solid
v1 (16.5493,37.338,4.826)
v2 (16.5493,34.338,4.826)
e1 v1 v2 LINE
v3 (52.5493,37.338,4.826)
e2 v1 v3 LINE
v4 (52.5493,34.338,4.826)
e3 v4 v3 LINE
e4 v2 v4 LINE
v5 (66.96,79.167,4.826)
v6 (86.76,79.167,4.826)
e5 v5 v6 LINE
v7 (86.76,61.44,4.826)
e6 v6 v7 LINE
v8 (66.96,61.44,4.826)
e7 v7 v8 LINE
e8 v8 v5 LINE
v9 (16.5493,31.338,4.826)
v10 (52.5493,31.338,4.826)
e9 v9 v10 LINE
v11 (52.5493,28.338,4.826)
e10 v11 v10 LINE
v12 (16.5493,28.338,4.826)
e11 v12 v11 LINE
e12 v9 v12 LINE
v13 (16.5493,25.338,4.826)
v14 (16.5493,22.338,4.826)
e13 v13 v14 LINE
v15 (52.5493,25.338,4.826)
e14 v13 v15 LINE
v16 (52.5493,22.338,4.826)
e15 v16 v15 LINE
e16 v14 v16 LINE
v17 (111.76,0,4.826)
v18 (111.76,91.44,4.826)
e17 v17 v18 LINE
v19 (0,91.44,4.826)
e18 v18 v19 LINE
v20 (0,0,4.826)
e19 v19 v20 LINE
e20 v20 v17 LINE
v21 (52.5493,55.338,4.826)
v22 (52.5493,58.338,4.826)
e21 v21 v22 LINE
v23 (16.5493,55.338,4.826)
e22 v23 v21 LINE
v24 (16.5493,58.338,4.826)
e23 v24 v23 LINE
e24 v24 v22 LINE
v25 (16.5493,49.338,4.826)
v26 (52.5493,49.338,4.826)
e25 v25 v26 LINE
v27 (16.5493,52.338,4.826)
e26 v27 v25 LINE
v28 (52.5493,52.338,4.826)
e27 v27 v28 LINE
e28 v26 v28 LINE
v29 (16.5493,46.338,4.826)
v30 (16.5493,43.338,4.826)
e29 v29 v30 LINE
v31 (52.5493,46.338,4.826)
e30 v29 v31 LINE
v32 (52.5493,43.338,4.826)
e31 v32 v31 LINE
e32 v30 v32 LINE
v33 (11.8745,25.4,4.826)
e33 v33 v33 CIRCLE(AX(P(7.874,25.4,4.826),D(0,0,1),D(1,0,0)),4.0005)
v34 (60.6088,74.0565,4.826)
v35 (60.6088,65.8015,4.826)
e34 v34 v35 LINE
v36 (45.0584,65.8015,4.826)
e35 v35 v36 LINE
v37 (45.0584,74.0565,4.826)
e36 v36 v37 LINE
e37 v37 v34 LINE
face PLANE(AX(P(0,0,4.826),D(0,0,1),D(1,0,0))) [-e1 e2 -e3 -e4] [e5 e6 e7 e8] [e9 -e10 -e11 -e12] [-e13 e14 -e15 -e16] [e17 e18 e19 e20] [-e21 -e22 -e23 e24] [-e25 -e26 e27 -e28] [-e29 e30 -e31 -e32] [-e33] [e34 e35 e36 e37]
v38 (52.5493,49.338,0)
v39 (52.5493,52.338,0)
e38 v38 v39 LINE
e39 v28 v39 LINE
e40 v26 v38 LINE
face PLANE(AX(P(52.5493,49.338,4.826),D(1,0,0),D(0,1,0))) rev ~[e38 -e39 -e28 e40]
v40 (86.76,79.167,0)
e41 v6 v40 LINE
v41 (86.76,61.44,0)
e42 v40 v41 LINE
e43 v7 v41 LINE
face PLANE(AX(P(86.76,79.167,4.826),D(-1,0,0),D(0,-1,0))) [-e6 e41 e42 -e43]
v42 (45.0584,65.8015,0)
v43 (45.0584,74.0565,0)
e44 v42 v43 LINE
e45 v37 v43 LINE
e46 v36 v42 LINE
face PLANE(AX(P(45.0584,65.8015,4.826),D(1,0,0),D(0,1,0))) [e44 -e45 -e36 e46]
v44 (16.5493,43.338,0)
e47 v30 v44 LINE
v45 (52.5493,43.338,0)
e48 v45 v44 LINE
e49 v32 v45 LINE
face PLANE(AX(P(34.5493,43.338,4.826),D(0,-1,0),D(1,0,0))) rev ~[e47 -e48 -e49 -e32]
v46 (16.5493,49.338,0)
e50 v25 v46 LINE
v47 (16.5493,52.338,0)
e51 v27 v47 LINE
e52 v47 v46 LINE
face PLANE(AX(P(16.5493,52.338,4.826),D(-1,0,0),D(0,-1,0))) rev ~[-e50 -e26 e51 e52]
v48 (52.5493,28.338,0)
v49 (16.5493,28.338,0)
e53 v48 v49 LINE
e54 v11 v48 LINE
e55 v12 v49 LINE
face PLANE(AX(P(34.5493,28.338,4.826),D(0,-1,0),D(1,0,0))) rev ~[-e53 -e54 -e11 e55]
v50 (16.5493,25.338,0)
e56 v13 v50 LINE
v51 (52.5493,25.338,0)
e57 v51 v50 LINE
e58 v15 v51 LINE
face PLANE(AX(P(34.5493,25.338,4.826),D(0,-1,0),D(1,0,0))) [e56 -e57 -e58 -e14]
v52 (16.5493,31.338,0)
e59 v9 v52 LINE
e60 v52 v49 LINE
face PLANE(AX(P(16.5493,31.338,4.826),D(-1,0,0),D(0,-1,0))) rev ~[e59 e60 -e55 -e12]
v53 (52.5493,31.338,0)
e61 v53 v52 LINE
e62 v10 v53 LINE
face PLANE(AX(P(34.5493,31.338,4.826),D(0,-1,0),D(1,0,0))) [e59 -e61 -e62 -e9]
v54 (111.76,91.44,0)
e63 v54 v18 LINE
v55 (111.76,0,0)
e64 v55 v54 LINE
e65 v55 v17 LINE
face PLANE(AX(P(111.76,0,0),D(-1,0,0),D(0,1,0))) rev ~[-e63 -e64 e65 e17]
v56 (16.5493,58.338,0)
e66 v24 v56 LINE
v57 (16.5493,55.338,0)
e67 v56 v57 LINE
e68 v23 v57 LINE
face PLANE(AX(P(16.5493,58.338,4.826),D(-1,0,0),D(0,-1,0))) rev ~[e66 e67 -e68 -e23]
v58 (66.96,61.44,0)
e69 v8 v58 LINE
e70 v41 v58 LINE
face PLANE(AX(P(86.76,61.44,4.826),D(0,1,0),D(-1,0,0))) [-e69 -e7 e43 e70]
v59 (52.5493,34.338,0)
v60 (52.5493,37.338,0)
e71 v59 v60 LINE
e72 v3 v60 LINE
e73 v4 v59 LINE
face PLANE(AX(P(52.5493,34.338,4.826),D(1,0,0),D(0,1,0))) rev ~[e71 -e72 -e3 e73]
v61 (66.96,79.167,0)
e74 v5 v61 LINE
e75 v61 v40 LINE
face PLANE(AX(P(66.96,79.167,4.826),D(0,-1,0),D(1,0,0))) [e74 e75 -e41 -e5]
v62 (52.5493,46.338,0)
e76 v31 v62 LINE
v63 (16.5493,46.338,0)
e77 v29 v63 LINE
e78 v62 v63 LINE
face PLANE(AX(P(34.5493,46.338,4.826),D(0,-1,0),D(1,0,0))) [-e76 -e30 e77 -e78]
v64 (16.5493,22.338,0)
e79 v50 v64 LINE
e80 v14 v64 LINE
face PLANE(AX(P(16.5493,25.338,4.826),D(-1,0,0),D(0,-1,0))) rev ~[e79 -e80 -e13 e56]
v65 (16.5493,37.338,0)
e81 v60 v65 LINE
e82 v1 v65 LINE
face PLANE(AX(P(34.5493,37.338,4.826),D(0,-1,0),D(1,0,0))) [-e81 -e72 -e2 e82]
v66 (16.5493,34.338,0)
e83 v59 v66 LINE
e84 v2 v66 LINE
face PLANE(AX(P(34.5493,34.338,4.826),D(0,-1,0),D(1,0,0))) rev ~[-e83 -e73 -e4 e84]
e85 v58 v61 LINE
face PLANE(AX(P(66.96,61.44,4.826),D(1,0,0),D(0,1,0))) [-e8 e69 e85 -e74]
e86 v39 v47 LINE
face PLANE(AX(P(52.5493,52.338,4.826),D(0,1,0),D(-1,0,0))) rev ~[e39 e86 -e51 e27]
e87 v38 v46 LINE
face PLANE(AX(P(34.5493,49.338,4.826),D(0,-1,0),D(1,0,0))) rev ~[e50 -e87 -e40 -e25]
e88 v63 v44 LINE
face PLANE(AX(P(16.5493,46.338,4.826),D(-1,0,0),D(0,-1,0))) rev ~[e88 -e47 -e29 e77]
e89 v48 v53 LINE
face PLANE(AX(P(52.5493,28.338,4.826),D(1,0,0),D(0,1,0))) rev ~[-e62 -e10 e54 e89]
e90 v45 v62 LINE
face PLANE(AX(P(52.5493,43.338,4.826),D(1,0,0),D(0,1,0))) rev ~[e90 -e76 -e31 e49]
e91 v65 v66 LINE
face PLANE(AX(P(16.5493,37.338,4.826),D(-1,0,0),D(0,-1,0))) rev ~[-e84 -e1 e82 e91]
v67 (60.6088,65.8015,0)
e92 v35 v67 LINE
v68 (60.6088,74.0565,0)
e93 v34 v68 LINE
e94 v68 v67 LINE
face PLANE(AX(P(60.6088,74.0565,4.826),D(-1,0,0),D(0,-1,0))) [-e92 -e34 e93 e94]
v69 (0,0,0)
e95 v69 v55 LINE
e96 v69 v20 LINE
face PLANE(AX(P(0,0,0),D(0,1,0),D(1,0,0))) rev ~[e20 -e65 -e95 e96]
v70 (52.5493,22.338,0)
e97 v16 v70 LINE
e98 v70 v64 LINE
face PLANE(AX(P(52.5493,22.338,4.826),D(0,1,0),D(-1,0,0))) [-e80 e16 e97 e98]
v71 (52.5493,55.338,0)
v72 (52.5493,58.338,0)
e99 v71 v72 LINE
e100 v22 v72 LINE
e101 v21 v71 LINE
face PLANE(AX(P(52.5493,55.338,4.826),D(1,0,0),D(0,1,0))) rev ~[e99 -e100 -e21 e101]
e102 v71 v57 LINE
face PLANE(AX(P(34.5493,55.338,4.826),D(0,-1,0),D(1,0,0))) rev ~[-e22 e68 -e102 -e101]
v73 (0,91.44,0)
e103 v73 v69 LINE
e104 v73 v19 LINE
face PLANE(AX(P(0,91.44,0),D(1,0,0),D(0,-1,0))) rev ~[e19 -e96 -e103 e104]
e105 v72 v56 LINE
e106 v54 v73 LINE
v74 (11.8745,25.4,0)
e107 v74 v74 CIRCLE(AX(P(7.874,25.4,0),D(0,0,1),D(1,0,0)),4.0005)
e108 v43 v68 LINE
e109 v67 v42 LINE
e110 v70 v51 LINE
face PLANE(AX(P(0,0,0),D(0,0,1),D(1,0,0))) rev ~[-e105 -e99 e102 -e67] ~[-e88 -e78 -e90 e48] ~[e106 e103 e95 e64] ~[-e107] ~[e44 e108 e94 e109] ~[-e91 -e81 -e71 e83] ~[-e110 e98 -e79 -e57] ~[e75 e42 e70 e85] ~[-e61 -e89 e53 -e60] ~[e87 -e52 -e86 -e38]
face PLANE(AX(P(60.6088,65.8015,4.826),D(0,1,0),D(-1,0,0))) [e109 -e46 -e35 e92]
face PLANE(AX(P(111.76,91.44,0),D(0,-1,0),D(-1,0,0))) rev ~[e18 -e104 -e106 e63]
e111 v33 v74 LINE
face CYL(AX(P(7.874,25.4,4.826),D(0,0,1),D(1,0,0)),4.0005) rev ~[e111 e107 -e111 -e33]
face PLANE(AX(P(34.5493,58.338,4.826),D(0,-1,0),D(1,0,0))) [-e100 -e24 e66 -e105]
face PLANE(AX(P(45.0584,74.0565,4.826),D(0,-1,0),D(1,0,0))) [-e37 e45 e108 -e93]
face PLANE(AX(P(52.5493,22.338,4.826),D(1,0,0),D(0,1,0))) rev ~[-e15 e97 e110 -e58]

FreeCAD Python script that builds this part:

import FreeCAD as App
import Part
import Sketcher

V = App.Vector
Q = App.Units.Quantity


def add_polygon(sketch, points):
    """Adds a closed chain of lines whose ends are joined by coincident constraints."""
    first, n = sketch.GeometryCount, len(points)
    for a, b in zip(points, points[1:] + points[:1]):
        sketch.addGeometry(Part.LineSegment(App.Vector(*a, 0), App.Vector(*b, 0)), False)
    for i in range(n):
        sketch.addConstraint(Sketcher.Constraint("Coincident", first + i, 2, first + (i + 1) % n, 1))

doc = App.newDocument("Part")
body = doc.addObject("PartDesign::Body", "Body")

sketch1 = body.newObject("Sketcher::SketchObject", "Sketch")
sketch1.AttachmentSupport = (doc.getObject("XY_Plane"), [""])
sketch1.MapMode = "FlatFace"
add_polygon(sketch1, [(0, 91.44), (0, 0), (111.76, 0), (111.76, 91.44)])
sketch1.addConstraint([
    Sketcher.Constraint("Vertical", 0),
    Sketcher.Constraint("Horizontal", 1),
    Sketcher.Constraint("Vertical", 2),
    Sketcher.Constraint("Horizontal", 3),
    Sketcher.Constraint("Coincident", 0, 2, -1, 1),
    Sketcher.Constraint("DistanceX", 1, 1, 1, 2, Q("4.4 in")),
    Sketcher.Constraint("DistanceY", 0, 2, 0, 1, Q("3.6 in")),
])
pad1 = body.newObject("PartDesign::Pad", "Pad")
pad1.Profile = sketch1
pad1.Length = Q("0.19 in")

sketch2 = body.newObject("Sketcher::SketchObject", "Sketch001")
sketch2.AttachmentSupport = (doc.getObject("XY_Plane"), [""])
sketch2.MapMode = "FlatFace"
sketch2.AttachmentOffset = App.Placement(V(0, 0, 0.19 * 25.4), App.Rotation())
add_polygon(sketch2, [(52.5493, 37.338), (16.5493, 37.338), (16.5493, 34.338), (52.5493, 34.338)])
add_polygon(sketch2, [(52.5493, 31.338), (16.5493, 31.338), (16.5493, 28.338), (52.5493, 28.338)])
add_polygon(sketch2, [(52.5493, 46.338), (16.5493, 46.338), (16.5493, 43.338), (52.5493, 43.338)])
add_polygon(sketch2, [(52.5493, 25.338), (16.5493, 25.338), (16.5493, 22.338), (52.5493, 22.338)])
add_polygon(sketch2, [(52.5493, 52.338), (16.5493, 52.338), (16.5493, 49.338), (52.5493, 49.338)])
add_polygon(sketch2, [(52.5493, 58.338), (16.5493, 58.338), (16.5493, 55.338), (52.5493, 55.338)])
add_polygon(sketch2, [(86.76, 79.167), (66.96, 79.167), (66.96, 61.44), (86.76, 61.44)])
add_polygon(sketch2, [(60.6088, 65.8015), (60.6088, 74.0565), (45.0584, 74.0565), (45.0584, 65.8015)])
sketch2.addGeometry(Part.Circle(V(7.874, 25.4, 0), V(0, 0, 1), 4.0005), False)
sketch2.addConstraint([
    Sketcher.Constraint("Horizontal", 0),
    Sketcher.Constraint("Vertical", 1),
    Sketcher.Constraint("Horizontal", 2),
    Sketcher.Constraint("Vertical", 3),
    Sketcher.Constraint("Horizontal", 4),
    Sketcher.Constraint("Vertical", 5),
    Sketcher.Constraint("Horizontal", 6),
    Sketcher.Constraint("Vertical", 7),
    Sketcher.Constraint("Horizontal", 8),
    Sketcher.Constraint("Vertical", 9),
    Sketcher.Constraint("Horizontal", 10),
    Sketcher.Constraint("Vertical", 11),
    Sketcher.Constraint("Horizontal", 12),
    Sketcher.Constraint("Vertical", 13),
    Sketcher.Constraint("Horizontal", 14),
    Sketcher.Constraint("Vertical", 15),
    Sketcher.Constraint("Horizontal", 16),
    Sketcher.Constraint("Vertical", 17),
    Sketcher.Constraint("Horizontal", 18),
    Sketcher.Constraint("Vertical", 19),
    Sketcher.Constraint("Horizontal", 20),
    Sketcher.Constraint("Vertical", 21),
    Sketcher.Constraint("Horizontal", 22),
    Sketcher.Constraint("Vertical", 23),
    Sketcher.Constraint("Horizontal", 24),
    Sketcher.Constraint("Vertical", 25),
    Sketcher.Constraint("Horizontal", 26),
    Sketcher.Constraint("Vertical", 27),
    Sketcher.Constraint("Vertical", 28),
    Sketcher.Constraint("Horizontal", 29),
    Sketcher.Constraint("Vertical", 30),
    Sketcher.Constraint("Horizontal", 31),
    Sketcher.Constraint("Vertical", 1, 2, 4, 2),
    Sketcher.Constraint("Vertical", 3, 2, 6, 2),
    Sketcher.Constraint("Vertical", 5, 2, 8, 2),
    Sketcher.Constraint("Vertical", 7, 2, 10, 2),
    Sketcher.Constraint("Vertical", 9, 2, 12, 2),
    Sketcher.Constraint("Vertical", 11, 2, 14, 2),
    Sketcher.Constraint("Vertical", 13, 2, 16, 2),
    Sketcher.Constraint("Vertical", 15, 2, 18, 2),
    Sketcher.Constraint("Vertical", 17, 2, 20, 2),
    Sketcher.Constraint("Vertical", 19, 2, 22, 2),
    Sketcher.Constraint("Equal", 3, 5),
    Sketcher.Constraint("Equal", 7, 9),
    Sketcher.Constraint("Equal", 11, 13),
    Sketcher.Constraint("Equal", 15, 17),
    Sketcher.Constraint("Equal", 19, 21),
    Sketcher.Constraint("Diameter", 32, Q("0.315 in")),
    Sketcher.Constraint("DistanceY", -1, 1, 32, 3, Q("1 in")),
    Sketcher.Constraint("DistanceY", 28, 1, 28, 2, Q("0.325 in")),
    Sketcher.Constraint("DistanceX", -1, 1, 32, 3, Q("0.31 in")),
    Sketcher.Constraint("DistanceY", -1, 1, 0, 2, Q("1.47 in")),
    Sketcher.Constraint("DistanceY", 1, 2, 1, 1, Q("0.1181 in")),
    Sketcher.Constraint("DistanceX", 0, 2, 0, 1, Q("36 mm")),
    Sketcher.Constraint("DistanceX", 24, 2, 24, 1, Q("19.8 mm")),
    Sketcher.Constraint("DistanceX", 29, 2, 29, 1, Q("15.5504 mm")),
    Sketcher.Constraint("DistanceY", 25, 2, 25, 1, Q("17.727 mm")),
    Sketcher.Constraint("DistanceY", -1, 1, 24, 2, Q("3.1168 in")),
    Sketcher.Constraint("DistanceY", -1, 1, 28, 2, Q("2.9156 in")),
    Sketcher.Constraint("DistanceY", 4, 2, 1, 2, Q("0.1181 in")),
    Sketcher.Constraint("DistanceY", 12, 2, 5, 2, Q("0.1181 in")),
    Sketcher.Constraint("DistanceY", 8, 2, 17, 2, Q("0.1181 in")),
    Sketcher.Constraint("DistanceY", 16, 2, 21, 2, Q("0.1181 in")),
    Sketcher.Constraint("DistanceX", 23, 2, 28, 2, Q("0.3173 in")),
    Sketcher.Constraint("DistanceX", -1, 1, 0, 2, Q("16.5493 mm")),
    Sketcher.Constraint("DistanceY", -1, 1, 8, 2, Q("46.338 mm")),
    Sketcher.Constraint("DistanceX", -1, 1, 24, 2, Q("66.96 mm")),
])
pocket1 = body.newObject("PartDesign::Pocket", "Pocket")
pocket1.Profile = sketch2
pocket1.Length = Q("0.19 in")

doc.recompute()
